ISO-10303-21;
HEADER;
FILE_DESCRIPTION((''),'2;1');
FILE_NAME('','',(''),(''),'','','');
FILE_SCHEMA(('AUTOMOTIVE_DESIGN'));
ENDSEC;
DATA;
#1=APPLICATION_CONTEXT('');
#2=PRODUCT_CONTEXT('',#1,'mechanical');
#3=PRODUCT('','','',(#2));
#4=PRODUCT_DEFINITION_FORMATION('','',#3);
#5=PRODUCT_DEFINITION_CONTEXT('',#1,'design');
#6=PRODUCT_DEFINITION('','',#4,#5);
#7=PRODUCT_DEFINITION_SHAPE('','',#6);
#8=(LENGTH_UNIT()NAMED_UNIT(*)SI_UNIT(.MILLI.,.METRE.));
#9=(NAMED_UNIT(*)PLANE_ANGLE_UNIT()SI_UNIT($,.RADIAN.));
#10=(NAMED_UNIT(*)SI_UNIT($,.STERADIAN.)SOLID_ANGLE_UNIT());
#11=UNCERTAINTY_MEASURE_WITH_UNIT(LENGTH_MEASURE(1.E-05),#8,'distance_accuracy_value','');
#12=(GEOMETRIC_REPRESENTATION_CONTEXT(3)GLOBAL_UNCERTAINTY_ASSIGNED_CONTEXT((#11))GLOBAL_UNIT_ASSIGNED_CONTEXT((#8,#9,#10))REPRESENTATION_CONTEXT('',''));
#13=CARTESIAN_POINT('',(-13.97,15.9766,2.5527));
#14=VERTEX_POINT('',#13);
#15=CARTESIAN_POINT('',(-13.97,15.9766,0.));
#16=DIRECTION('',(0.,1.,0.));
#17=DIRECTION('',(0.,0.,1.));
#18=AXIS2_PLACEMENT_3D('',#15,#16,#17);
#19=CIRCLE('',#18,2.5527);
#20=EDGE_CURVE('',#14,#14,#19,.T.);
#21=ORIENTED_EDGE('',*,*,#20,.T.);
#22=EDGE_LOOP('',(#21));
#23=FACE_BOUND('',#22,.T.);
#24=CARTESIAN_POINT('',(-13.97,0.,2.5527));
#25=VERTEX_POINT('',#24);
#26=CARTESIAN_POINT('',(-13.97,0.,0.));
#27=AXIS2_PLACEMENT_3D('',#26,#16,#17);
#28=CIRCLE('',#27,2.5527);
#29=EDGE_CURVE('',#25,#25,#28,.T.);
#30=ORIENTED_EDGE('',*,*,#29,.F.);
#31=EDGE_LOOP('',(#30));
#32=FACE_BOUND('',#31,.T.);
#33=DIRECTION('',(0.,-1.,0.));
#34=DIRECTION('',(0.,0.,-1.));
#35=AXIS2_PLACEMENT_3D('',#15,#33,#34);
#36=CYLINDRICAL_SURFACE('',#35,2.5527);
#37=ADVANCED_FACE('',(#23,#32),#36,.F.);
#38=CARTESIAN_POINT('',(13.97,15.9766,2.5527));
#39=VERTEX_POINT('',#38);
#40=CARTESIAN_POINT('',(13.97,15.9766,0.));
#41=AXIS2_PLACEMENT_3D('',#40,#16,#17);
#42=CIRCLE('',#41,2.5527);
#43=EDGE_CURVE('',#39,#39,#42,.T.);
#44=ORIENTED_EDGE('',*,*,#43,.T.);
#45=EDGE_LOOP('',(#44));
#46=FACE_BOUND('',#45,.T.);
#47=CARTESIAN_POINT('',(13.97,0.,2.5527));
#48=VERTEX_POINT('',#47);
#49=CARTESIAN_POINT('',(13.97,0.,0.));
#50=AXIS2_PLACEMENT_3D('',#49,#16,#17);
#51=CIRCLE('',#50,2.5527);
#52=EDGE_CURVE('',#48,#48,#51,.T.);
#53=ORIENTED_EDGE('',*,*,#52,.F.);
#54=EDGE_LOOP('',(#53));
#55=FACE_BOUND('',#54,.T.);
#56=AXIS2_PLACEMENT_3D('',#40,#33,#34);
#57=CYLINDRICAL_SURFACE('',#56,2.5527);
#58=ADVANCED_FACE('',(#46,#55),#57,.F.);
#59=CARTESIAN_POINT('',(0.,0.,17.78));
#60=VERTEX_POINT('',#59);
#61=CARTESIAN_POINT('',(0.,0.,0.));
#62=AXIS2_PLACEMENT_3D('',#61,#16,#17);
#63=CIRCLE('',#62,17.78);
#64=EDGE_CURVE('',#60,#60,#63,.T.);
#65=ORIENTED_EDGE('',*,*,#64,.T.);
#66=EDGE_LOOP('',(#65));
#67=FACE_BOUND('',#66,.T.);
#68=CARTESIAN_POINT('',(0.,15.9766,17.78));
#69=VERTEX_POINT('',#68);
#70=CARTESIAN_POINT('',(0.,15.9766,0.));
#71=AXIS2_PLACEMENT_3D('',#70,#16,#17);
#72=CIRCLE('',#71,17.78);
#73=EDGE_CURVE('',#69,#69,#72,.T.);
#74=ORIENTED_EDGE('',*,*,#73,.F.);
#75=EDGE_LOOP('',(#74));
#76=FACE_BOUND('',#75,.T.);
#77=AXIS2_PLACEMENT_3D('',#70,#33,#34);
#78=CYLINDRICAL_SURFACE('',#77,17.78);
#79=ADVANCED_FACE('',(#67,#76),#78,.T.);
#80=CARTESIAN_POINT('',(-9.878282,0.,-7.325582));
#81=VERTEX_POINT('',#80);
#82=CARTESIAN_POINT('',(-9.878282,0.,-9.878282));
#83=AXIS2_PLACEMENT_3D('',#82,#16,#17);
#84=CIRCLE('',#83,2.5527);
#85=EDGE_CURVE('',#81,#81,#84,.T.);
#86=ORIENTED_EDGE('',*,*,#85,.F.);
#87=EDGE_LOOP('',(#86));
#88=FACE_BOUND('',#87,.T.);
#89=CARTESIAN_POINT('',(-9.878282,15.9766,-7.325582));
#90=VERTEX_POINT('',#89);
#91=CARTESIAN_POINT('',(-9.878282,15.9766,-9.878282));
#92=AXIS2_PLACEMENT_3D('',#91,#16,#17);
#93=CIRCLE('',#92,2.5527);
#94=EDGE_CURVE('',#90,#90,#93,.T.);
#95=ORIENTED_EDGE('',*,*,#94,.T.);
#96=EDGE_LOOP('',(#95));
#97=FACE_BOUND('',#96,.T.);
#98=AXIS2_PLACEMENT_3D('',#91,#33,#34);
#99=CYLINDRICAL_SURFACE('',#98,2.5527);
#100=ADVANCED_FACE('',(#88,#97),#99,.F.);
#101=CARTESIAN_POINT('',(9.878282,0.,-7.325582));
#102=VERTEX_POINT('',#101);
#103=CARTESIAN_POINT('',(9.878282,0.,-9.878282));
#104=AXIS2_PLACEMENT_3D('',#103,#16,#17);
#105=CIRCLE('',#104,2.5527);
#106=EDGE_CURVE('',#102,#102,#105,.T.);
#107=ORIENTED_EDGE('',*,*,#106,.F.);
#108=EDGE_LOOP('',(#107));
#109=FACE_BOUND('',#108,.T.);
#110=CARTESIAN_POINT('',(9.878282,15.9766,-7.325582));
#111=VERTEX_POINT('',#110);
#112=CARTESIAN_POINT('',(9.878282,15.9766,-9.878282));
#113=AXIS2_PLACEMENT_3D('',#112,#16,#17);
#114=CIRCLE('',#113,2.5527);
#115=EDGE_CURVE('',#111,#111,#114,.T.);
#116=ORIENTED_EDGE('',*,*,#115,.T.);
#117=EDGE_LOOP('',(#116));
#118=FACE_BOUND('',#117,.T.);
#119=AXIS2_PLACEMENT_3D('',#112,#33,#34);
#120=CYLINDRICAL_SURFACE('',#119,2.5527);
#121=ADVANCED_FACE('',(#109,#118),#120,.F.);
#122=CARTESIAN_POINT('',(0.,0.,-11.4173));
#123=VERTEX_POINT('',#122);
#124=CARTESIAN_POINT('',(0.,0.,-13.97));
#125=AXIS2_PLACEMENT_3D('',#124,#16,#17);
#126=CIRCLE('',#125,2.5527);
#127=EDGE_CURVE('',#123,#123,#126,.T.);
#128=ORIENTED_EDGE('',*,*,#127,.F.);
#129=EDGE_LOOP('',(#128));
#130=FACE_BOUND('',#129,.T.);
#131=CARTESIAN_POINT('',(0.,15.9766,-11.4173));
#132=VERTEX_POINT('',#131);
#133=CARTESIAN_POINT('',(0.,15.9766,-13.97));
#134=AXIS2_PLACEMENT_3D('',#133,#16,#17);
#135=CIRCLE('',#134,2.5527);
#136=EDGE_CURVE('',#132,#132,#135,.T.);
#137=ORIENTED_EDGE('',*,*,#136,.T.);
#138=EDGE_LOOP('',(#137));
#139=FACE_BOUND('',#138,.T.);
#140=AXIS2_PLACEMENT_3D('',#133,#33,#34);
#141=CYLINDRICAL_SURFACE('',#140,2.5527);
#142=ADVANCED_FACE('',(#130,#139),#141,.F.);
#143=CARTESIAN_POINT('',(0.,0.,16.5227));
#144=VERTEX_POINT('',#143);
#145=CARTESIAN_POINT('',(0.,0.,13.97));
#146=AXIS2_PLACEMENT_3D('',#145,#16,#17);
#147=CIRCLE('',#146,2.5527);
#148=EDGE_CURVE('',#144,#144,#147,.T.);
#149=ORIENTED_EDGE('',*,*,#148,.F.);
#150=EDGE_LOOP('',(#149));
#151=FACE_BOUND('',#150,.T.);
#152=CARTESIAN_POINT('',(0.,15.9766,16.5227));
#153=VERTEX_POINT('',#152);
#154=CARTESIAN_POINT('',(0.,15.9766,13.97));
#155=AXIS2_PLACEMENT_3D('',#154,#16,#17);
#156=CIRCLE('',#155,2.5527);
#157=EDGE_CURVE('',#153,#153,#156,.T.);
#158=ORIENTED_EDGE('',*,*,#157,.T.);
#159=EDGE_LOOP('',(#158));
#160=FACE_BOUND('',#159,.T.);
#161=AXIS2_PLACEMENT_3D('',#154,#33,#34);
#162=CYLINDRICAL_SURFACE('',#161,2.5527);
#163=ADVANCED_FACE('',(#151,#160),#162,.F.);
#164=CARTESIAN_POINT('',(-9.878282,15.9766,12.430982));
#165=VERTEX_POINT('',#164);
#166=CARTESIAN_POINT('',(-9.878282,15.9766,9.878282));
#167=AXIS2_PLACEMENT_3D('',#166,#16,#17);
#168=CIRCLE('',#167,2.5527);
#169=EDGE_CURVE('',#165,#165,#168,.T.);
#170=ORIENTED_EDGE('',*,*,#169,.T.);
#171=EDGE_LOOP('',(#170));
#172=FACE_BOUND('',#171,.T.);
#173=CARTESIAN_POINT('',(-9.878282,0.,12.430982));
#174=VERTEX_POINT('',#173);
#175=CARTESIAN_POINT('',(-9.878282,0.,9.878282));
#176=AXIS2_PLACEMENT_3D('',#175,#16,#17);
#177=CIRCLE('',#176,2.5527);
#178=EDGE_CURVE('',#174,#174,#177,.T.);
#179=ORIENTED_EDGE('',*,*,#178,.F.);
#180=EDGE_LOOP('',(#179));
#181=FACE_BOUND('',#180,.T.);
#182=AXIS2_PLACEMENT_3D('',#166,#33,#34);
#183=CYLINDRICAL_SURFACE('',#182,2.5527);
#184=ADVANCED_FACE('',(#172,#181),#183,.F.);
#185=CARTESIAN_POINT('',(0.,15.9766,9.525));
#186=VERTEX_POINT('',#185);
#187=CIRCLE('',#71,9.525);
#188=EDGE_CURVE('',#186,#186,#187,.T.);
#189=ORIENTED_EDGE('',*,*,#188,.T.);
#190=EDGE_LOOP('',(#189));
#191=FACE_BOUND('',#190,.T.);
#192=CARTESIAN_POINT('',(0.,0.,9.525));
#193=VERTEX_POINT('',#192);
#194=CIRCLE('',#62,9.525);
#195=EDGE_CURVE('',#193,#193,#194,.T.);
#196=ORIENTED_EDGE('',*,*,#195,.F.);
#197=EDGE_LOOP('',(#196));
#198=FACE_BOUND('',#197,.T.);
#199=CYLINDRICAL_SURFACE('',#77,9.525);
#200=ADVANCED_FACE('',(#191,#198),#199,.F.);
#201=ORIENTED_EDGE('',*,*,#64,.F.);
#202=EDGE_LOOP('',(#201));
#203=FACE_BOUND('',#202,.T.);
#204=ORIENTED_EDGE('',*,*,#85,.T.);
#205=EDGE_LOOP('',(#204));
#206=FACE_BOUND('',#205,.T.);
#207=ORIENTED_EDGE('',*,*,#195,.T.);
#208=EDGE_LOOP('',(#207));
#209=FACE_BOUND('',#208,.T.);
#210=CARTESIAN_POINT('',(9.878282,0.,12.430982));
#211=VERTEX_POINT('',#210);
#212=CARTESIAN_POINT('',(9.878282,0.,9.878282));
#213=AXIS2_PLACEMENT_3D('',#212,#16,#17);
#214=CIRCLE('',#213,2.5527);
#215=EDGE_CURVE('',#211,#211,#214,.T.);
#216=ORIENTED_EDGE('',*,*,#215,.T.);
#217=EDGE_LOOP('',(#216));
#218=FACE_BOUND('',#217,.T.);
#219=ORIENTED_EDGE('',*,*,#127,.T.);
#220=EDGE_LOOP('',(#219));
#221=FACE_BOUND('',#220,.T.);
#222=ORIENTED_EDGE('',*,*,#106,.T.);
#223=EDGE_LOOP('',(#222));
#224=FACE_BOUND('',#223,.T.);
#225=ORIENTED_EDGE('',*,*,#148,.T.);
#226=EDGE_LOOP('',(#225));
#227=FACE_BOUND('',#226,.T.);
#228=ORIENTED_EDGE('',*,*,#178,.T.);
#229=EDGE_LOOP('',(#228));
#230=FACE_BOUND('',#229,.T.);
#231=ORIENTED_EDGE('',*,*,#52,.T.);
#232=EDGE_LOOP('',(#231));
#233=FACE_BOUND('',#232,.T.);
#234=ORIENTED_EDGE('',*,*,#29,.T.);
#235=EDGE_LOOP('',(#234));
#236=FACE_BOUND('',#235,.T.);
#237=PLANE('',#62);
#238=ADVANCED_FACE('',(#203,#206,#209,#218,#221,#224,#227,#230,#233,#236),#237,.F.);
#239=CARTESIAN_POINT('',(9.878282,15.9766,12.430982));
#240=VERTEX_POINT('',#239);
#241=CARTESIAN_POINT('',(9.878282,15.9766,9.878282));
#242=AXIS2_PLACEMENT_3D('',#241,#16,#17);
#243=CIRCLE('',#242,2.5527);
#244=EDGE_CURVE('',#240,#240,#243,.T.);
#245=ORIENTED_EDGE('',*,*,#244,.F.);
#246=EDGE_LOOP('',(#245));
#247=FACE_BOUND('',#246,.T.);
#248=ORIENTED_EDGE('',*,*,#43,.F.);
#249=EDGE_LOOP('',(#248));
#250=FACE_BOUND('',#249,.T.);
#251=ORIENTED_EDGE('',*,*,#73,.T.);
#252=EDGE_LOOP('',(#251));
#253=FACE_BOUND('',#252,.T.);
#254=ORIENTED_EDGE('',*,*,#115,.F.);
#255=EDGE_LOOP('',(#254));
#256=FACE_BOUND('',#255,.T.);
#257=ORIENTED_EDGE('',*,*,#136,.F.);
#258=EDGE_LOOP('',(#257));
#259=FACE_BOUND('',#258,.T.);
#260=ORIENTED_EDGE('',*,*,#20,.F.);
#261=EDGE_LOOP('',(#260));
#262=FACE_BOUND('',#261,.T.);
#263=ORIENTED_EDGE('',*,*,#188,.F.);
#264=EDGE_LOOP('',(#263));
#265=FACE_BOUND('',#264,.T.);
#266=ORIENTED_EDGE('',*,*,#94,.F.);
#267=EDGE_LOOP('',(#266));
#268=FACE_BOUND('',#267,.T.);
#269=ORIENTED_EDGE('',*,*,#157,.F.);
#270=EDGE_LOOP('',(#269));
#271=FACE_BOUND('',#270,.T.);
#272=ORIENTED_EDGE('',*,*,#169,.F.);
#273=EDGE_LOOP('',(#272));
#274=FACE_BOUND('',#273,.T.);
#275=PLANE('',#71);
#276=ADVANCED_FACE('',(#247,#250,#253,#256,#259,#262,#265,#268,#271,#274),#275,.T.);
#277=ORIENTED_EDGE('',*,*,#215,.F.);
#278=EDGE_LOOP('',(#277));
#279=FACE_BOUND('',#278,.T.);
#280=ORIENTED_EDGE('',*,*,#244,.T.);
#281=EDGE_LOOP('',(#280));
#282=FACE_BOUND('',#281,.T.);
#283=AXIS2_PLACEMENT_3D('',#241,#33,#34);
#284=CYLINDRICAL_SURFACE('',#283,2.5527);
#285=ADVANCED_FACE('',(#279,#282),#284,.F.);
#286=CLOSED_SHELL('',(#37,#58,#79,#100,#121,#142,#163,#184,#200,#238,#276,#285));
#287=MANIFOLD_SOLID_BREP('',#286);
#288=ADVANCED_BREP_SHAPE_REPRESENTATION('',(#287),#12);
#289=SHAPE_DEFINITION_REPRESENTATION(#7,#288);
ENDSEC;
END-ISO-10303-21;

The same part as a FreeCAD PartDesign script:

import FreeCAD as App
import Part
import Sketcher

V = App.Vector
Q = App.Units.Quantity

doc = App.newDocument("Part")
body = doc.addObject("PartDesign::Body", "Body")

# Sketch on XZ plane
sketch1 = doc.addObject("Sketcher::SketchObject", "Sketch")
body.addObject(sketch1)
sketch1.AttachmentSupport = (doc.XZ_Plane, [""])
sketch1.MapMode = "FlatFace"
sketch1.addGeometry([
    Part.Circle(V(0, 0, 0), V(0, 0, 1), 17.78),  # 0
    Part.Circle(V(-9.878282, 9.878282, 0), V(0, 0, 1), 2.5527),  # 1
    Part.Circle(V(0, 13.97, 0), V(0, 0, 1), 2.5527),  # 2
    Part.Circle(V(9.878282, 9.878282, 0), V(0, 0, 1), 2.5527),  # 3
    Part.Circle(V(-13.97, 0, 0), V(0, 0, 1), 2.5527),  # 4
    Part.Circle(V(-9.878282, -9.878282, 0), V(0, 0, 1), 2.5527),  # 5
    Part.Circle(V(0, 0, 0), V(0, 0, 1), 9.525),  # 6
    Part.Circle(V(13.97, 0, 0), V(0, 0, 1), 2.5527),  # 7
    Part.Circle(V(0, -13.97, 0), V(0, 0, 1), 2.5527),  # 8
    Part.Circle(V(9.878282, -9.878282, 0), V(0, 0, 1), 2.5527),  # 9
], False)
sketch1.addConstraint([
    Sketcher.Constraint("Coincident", 0, 3, -1, 1),
    Sketcher.Constraint("Coincident", 6, 3, -1, 1),
    Sketcher.Constraint("Equal", 1, 2),
    Sketcher.Constraint("Equal", 2, 3),
    Sketcher.Constraint("Equal", 3, 4),
    Sketcher.Constraint("Equal", 4, 5),
    Sketcher.Constraint("Equal", 5, 7),
    Sketcher.Constraint("Equal", 7, 8),
    Sketcher.Constraint("Equal", 8, 9),
    Sketcher.Constraint("Symmetric", 3, 3, 5, 3, -1, 1),
    Sketcher.Constraint("Symmetric", 4, 3, 7, 3, -1, 1),
    Sketcher.Constraint("Symmetric", 2, 3, 8, 3, -1, 1),
    Sketcher.Constraint("Symmetric", 1, 3, 9, 3, -1, 1),
    Sketcher.Constraint("Symmetric", 1, 3, 3, 3, -2),
    Sketcher.Constraint("PointOnObject", 2, 3, -2),
    Sketcher.Constraint("PointOnObject", 4, 3, -1),
    Sketcher.Constraint("Diameter", 0, Q("1.4 in")),
    Sketcher.Constraint("Diameter", 6, Q("0.75 in")),
    Sketcher.Constraint("Diameter", 1, Q("0.201 in")),
    Sketcher.Constraint("DistanceY", -1, 1, 2, 3, Q("0.55 in")),
    Sketcher.Constraint("DistanceX", 4, 3, -1, 1, Q("0.55 in")),
    Sketcher.Constraint("DistanceX", 1, 3, -1, 1, Q("9.878282 mm")),
    Sketcher.Constraint("DistanceY", -1, 1, 1, 3, Q("9.878282 mm")),
])
pad1 = doc.addObject("PartDesign::Pad", "Pad")
body.addObject(pad1)
pad1.Profile = sketch1
pad1.Length = Q("0.629 in")
pad1.Reversed = True

doc.recompute()
